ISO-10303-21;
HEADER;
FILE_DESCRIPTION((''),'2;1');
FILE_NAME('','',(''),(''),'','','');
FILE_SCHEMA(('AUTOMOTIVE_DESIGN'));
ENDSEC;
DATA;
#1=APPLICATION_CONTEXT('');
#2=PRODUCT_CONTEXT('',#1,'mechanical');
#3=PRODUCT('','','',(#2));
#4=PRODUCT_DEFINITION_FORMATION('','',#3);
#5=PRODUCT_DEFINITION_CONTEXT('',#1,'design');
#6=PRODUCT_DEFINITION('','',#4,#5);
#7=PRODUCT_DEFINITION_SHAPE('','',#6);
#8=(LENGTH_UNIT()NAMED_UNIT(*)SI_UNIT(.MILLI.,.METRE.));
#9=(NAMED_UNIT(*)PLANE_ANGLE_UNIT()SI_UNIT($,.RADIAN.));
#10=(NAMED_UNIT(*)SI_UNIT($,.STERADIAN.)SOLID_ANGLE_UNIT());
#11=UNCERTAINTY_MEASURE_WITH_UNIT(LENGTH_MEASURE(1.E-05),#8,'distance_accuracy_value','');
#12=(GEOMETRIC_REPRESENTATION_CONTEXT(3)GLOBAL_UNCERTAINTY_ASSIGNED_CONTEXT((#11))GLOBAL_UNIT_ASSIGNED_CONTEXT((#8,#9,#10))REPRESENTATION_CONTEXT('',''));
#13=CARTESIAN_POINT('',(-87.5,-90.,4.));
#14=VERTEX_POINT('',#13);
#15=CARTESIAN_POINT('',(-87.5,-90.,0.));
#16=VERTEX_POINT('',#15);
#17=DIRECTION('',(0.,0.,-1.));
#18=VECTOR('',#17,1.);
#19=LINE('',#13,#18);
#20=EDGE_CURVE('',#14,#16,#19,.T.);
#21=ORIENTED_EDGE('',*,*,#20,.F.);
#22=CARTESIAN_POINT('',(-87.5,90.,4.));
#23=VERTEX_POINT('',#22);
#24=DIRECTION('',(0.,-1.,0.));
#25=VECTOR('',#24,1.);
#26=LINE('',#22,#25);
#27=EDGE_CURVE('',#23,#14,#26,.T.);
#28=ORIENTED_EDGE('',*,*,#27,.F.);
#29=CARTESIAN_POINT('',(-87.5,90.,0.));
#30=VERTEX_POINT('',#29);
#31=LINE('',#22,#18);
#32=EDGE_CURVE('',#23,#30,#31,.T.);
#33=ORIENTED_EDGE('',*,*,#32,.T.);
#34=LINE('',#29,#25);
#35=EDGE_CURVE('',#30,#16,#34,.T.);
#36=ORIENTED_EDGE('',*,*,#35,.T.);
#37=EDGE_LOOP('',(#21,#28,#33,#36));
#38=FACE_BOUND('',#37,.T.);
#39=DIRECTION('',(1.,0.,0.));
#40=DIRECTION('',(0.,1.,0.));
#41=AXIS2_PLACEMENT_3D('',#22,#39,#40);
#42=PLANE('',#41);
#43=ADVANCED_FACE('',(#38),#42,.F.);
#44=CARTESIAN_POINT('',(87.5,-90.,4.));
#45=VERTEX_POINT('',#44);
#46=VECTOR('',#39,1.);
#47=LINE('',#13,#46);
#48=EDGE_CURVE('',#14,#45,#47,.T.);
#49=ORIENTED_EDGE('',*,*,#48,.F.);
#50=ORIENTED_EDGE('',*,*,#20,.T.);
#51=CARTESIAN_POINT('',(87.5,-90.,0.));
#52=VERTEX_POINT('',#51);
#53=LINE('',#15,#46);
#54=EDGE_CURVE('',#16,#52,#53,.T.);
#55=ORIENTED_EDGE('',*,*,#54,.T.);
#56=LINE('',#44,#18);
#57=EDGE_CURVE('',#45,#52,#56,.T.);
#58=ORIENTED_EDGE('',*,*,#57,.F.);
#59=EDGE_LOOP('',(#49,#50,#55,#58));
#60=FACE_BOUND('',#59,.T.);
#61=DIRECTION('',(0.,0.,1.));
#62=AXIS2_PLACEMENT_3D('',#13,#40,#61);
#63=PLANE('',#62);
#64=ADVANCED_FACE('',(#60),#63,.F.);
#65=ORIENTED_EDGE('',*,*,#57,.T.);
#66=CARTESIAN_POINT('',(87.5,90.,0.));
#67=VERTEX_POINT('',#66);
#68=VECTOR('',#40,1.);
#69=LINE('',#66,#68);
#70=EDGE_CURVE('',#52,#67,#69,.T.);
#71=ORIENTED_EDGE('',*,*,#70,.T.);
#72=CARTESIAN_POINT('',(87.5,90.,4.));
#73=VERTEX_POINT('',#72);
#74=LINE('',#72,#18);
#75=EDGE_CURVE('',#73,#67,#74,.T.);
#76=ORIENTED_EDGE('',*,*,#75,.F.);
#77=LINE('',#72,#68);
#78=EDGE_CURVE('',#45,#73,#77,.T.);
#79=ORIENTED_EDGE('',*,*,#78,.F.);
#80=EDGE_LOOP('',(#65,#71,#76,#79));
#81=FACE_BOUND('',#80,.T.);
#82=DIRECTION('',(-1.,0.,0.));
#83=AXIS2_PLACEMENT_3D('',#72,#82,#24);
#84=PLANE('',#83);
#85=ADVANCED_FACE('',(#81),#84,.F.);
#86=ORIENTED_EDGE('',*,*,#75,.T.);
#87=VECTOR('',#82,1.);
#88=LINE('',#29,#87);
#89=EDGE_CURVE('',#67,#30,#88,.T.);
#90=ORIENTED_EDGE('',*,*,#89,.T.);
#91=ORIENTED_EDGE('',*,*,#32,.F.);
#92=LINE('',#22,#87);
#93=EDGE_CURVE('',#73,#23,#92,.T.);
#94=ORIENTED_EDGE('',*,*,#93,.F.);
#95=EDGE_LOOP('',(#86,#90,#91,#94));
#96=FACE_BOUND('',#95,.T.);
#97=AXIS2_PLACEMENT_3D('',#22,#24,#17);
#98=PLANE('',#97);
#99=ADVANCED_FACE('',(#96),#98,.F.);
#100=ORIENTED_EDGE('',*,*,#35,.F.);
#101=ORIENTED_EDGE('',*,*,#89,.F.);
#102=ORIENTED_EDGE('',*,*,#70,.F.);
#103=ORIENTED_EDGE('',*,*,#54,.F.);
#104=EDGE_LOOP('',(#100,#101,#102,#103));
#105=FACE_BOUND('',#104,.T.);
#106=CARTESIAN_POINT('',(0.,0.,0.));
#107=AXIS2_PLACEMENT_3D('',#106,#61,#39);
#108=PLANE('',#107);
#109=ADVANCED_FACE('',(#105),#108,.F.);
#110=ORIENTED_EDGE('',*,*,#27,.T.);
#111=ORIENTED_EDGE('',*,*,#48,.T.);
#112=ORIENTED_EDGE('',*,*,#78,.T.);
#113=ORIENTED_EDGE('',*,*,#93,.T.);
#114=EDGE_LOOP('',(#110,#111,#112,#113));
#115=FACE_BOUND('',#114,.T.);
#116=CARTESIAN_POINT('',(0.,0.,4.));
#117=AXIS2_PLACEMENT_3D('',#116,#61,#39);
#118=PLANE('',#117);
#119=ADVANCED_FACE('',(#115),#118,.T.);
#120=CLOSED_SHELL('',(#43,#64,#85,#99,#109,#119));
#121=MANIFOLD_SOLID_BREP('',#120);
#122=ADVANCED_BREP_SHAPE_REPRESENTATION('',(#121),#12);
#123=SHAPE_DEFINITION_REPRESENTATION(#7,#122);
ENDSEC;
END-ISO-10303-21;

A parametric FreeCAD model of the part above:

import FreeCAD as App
import Part
import Sketcher
from FreeCAD import Vector
Q = App.Units.Quantity


def add_polygon(sketch, points):
    """Adds a closed chain of lines whose ends are joined by coincident constraints."""
    first, n = sketch.GeometryCount, len(points)
    for a, b in zip(points, points[1:] + points[:1]):
        sketch.addGeometry(Part.LineSegment(App.Vector(*a, 0), App.Vector(*b, 0)), False)
    for i in range(n):
        sketch.addConstraint(Sketcher.Constraint("Coincident", first + i, 2, first + (i + 1) % n, 1))

doc = App.newDocument("Part")
body = doc.addObject("PartDesign::Body", "Body")

# Sketch on XY plane
sketch1 = body.newObject("Sketcher::SketchObject", "Sketch")
sketch1.AttachmentSupport = (doc.getObject("XY_Plane"), [""])
sketch1.MapMode = "FlatFace"
add_polygon(sketch1, [(-88, 90), (-88, -90), (88, -90), (88, 90)])  # lines 0-3
sketch1.addConstraint([
    Sketcher.Constraint("Vertical", 0),
    Sketcher.Constraint("Horizontal", 1),
    Sketcher.Constraint("Vertical", 2),
    Sketcher.Constraint("Horizontal", 3),
    Sketcher.Constraint("Symmetric", 0, 2, 2, 2, -1, 1),
    Sketcher.Constraint("DistanceX", 1, 1, 1, 2, Q("175 mm")),
    Sketcher.Constraint("DistanceY", 0, 2, 0, 1, Q("180 mm")),
])
pad1 = body.newObject("PartDesign::Pad", "Pad")
pad1.Profile = sketch1
pad1.Length = 4

doc.recompute()
